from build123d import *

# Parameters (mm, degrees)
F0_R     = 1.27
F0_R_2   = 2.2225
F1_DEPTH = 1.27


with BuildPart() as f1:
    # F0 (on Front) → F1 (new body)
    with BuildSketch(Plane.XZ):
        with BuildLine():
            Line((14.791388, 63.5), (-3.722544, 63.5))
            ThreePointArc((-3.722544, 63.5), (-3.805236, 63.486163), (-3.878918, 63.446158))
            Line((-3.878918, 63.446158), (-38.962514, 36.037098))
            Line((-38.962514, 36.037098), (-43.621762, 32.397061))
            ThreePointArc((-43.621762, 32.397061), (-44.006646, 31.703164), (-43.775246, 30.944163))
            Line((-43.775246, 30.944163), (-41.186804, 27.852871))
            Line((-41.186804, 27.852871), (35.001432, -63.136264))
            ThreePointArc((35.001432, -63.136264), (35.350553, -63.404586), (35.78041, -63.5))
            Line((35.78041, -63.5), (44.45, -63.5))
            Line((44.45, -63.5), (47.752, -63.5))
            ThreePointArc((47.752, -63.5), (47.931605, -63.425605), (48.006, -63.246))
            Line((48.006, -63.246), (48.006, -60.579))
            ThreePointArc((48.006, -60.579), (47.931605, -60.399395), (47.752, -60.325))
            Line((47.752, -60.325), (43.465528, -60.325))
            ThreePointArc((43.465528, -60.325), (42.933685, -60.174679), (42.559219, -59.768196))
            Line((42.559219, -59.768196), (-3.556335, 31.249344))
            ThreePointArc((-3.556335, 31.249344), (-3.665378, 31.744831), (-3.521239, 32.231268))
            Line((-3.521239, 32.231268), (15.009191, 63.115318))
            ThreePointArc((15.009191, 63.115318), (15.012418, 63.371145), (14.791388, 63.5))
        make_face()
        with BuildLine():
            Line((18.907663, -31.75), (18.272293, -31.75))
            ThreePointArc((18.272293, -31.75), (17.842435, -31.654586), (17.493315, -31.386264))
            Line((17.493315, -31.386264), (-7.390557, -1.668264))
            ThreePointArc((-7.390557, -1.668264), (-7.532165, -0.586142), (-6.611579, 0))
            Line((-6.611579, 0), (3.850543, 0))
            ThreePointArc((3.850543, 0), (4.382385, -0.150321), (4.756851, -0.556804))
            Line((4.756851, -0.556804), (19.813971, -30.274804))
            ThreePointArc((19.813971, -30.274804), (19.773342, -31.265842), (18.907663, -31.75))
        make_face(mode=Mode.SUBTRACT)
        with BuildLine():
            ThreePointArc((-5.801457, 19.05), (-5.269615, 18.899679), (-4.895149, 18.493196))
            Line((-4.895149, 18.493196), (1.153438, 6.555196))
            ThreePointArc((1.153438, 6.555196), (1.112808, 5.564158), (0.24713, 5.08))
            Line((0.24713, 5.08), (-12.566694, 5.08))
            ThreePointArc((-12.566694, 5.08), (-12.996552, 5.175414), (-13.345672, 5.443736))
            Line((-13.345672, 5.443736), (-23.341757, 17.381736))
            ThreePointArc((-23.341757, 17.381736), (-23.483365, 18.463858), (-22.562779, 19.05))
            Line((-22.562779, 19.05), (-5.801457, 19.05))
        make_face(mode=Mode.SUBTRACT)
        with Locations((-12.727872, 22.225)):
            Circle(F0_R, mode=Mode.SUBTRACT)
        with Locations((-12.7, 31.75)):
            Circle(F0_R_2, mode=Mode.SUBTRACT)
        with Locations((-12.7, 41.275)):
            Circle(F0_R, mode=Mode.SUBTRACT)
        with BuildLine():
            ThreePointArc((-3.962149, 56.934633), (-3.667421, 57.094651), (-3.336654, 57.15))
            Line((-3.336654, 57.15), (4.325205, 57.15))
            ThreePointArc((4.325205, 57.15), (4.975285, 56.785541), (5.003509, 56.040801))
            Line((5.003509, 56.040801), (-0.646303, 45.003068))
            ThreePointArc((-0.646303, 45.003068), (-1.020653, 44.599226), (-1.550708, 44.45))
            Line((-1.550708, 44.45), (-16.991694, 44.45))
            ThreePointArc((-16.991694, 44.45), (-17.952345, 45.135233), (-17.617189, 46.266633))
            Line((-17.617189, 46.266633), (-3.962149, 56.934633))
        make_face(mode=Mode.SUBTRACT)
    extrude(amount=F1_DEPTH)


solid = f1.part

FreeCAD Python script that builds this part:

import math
import FreeCAD as App
import Part
import Sketcher
Q = App.Units.Quantity

doc = App.newDocument("Part")
params = doc.addObject("Spreadsheet::Sheet", "Params")
for row, (alias, value) in enumerate([
    ("sketch1_diameter", "0.1 in"),
    ("sketch1_diameter2", "0.1 in"),
    ("sketch1_radius", "0.04 in"),
    ("sketch1_radius2", "0.04 in"),
    ("sketch1_radius3", "0.01 in"),
    ("pad1_length", "0.05 in"),
], start=1):
    params.set(f"A{row}", alias)
    params.set(f"B{row}", "=" + value)
    params.setAlias(f"B{row}", alias)

body = doc.addObject("PartDesign::Body", "Body")

# Sketch on XZ plane
sketch1 = body.newObject("Sketcher::SketchObject", "Sketch")
sketch1.AttachmentSupport = (doc.getObject("XZ_Plane"), [""])
sketch1.MapMode = "FlatFace"
sketch1.addGeometry([
    Part.LineSegment(App.Vector(14.791388, 63.5, 0), App.Vector(-3.722544, 63.5, 0)),  # 0
    Part.ArcOfCircle(Part.Circle(App.Vector(-3.722547, 63.246007, 0), App.Vector(0, 0, 1), 0.253993), math.radians(89.999417), math.radians(127.999348)),  # 1
    Part.LineSegment(App.Vector(-3.878918, 63.446158, 0), App.Vector(-38.962514, 36.037098, 0)),  # 2
    Part.LineSegment(App.Vector(-38.962514, 36.037098, 0), App.Vector(-43.621762, 32.397061, 0)),  # 3
    Part.ArcOfCircle(Part.Circle(App.Vector(-42.996268, 31.596428, 0), App.Vector(0, 0, 1), 1.016), math.radians(127.998695), math.radians(219.940596)),  # 4
    Part.LineSegment(App.Vector(-43.775246, 30.944163, 0), App.Vector(-41.186804, 27.852871, 0)),  # 5
    Part.LineSegment(App.Vector(-41.186804, 27.852871, 0), App.Vector(35.001432, -63.136264, 0)),  # 6
    Part.ArcOfCircle(Part.Circle(App.Vector(35.78041, -62.484001, 0), App.Vector(0, 0, 1), 1.015999), math.radians(-140.05949), math.radians(-90.000016)),  # 7
    Part.LineSegment(App.Vector(35.78041, -63.5, 0), App.Vector(47.752, -63.5, 0)),  # 8
    Part.ArcOfCircle(Part.Circle(App.Vector(47.752, -63.246, 0), App.Vector(0, 0, 1), 0.254), math.radians(-89.999906), math.radians(-0.000094)),  # 9
    Part.LineSegment(App.Vector(48.006, -63.246, 0), App.Vector(48.006, -60.579, 0)),  # 10
    Part.ArcOfCircle(Part.Circle(App.Vector(47.752, -60.579, 0), App.Vector(0, 0, 1), 0.254), math.radians(0.000094), math.radians(89.999906)),  # 11
    Part.LineSegment(App.Vector(47.752, -60.325, 0), App.Vector(43.465528, -60.325, 0)),  # 12
    Part.ArcOfCircle(Part.Circle(App.Vector(43.465527, -59.309002, 0), App.Vector(0, 0, 1), 1.015998), math.radians(-153.130254), math.radians(-89.999917)),  # 13
    Part.LineSegment(App.Vector(42.559219, -59.768196, 0), App.Vector(-3.556335, 31.249344, 0)),  # 14
    Part.ArcOfCircle(Part.Circle(App.Vector(-2.650026, 31.70854, 0), App.Vector(0, 0, 1), 1.016001), math.radians(149.036236), math.radians(206.869767)),  # 15
    Part.LineSegment(App.Vector(-3.521239, 32.231268, 0), App.Vector(15.009191, 63.115318, 0)),  # 16
    Part.ArcOfCircle(Part.Circle(App.Vector(14.791386, 63.245999, 0), App.Vector(0, 0, 1), 0.254001), math.radians(-30.963473), math.radians(89.999661)),  # 17
    Part.LineSegment(App.Vector(-22.562779, 19.05, 0), App.Vector(-5.801457, 19.05, 0)),  # 18
    Part.ArcOfCircle(Part.Circle(App.Vector(-5.801457, 18.034002, 0), App.Vector(0, 0, 1), 1.015998), math.radians(26.869746), math.radians(90.000027)),  # 19
    Part.LineSegment(App.Vector(-4.895149, 18.493196, 0), App.Vector(1.153438, 6.555196, 0)),  # 20
    Part.ArcOfCircle(Part.Circle(App.Vector(0.247129, 6.096, 0), App.Vector(0, 0, 1), 1.016), math.radians(-89.99993), math.radians(26.869755)),  # 21
    Part.LineSegment(App.Vector(0.24713, 5.08, 0), App.Vector(-12.566694, 5.08, 0)),  # 22
    Part.ArcOfCircle(Part.Circle(App.Vector(-12.566696, 6.095995, 0), App.Vector(0, 0, 1), 1.015995), math.radians(-140.059598), math.radians(-89.999908)),  # 23
    Part.LineSegment(App.Vector(-13.345672, 5.443736, 0), App.Vector(-23.341757, 17.381736, 0)),  # 24
    Part.ArcOfCircle(Part.Circle(App.Vector(-22.56278, 18.034001, 0), App.Vector(0, 0, 1), 1.015999), math.radians(89.999964), math.radians(219.940598)),  # 25
    Part.ArcOfCircle(Part.Circle(App.Vector(18.907663, -30.734, 0), App.Vector(0, 0, 1), 1.016), math.radians(-90.000016), math.radians(26.869841)),  # 26
    Part.LineSegment(App.Vector(18.907663, -31.75, 0), App.Vector(18.272293, -31.75, 0)),  # 27
    Part.ArcOfCircle(Part.Circle(App.Vector(18.272291, -30.734005, 0), App.Vector(0, 0, 1), 1.015995), math.radians(-140.059598), math.radians(-89.999908)),  # 28
    Part.LineSegment(App.Vector(17.493315, -31.386264, 0), App.Vector(-7.390557, -1.668264, 0)),  # 29
    Part.ArcOfCircle(Part.Circle(App.Vector(-6.61158, -1.015999, 0), App.Vector(0, 0, 1), 1.015999), math.radians(89.999964), math.radians(219.940598)),  # 30
    Part.LineSegment(App.Vector(-6.611579, 0, 0), App.Vector(3.850543, 0, 0)),  # 31
    Part.ArcOfCircle(Part.Circle(App.Vector(3.850543, -1.015998, 0), App.Vector(0, 0, 1), 1.015998), math.radians(26.869746), math.radians(90.000027)),  # 32
    Part.LineSegment(App.Vector(4.756851, -0.556804, 0), App.Vector(19.813971, -30.274804, 0)),  # 33
    Part.Circle(App.Vector(-12.727872, 22.225, 0), App.Vector(0, 0, 1), 1.27),  # 34
    Part.Circle(App.Vector(-12.7, 31.75, 0), App.Vector(0, 0, 1), 2.2225),  # 35
    Part.Circle(App.Vector(-12.7, 41.275, 0), App.Vector(0, 0, 1), 1.27),  # 36
    Part.LineSegment(App.Vector(-17.617189, 46.266633, 0), App.Vector(-3.962149, 56.934633, 0)),  # 37
    Part.ArcOfCircle(Part.Circle(App.Vector(-3.336656, 56.134004, 0), App.Vector(0, 0, 1), 1.015996), math.radians(89.99986), math.radians(127.998797)),  # 38
    Part.LineSegment(App.Vector(-3.336654, 57.15, 0), App.Vector(4.325205, 57.15, 0)),  # 39
    Part.ArcOfCircle(Part.Circle(App.Vector(4.325204, 56.388, 0), App.Vector(0, 0, 1), 0.762), math.radians(-27.106176), math.radians(89.999915)),  # 40
    Part.LineSegment(App.Vector(5.003509, 56.040801, 0), App.Vector(-0.646303, 45.003068, 0)),  # 41
    Part.ArcOfCircle(Part.Circle(App.Vector(-1.550708, 45.465999, 0), App.Vector(0, 0, 1), 1.015999), math.radians(-89.999989), math.radians(-27.106194)),  # 42
    Part.LineSegment(App.Vector(-1.550708, 44.45, 0), App.Vector(-16.991694, 44.45, 0)),  # 43
    Part.ArcOfCircle(Part.Circle(App.Vector(-16.991694, 45.466, 0), App.Vector(0, 0, 1), 1.016), math.radians(127.998737), math.radians(270.000027)),  # 44
], False)
sketch1.addConstraint([
    Sketcher.Constraint("Coincident", 0, 2, 1, 1),
    Sketcher.Constraint("Coincident", 1, 2, 2, 1),
    Sketcher.Constraint("Coincident", 2, 2, 3, 1),
    Sketcher.Constraint("Coincident", 3, 2, 4, 1),
    Sketcher.Constraint("Coincident", 4, 2, 5, 1),
    Sketcher.Constraint("Coincident", 5, 2, 6, 1),
    Sketcher.Constraint("Coincident", 6, 2, 7, 1),
    Sketcher.Constraint("Coincident", 7, 2, 8, 1),
    Sketcher.Constraint("Coincident", 8, 2, 9, 1),
    Sketcher.Constraint("Coincident", 9, 2, 10, 1),
    Sketcher.Constraint("Coincident", 10, 2, 11, 1),
    Sketcher.Constraint("Coincident", 11, 2, 12, 1),
    Sketcher.Constraint("Coincident", 12, 2, 13, 2),
    Sketcher.Constraint("Coincident", 13, 1, 14, 1),
    Sketcher.Constraint("Coincident", 14, 2, 15, 2),
    Sketcher.Constraint("Coincident", 15, 1, 16, 1),
    Sketcher.Constraint("Coincident", 16, 2, 17, 1),
    Sketcher.Constraint("Coincident", 17, 2, 0, 1),
    Sketcher.Constraint("Coincident", 18, 2, 19, 2),
    Sketcher.Constraint("Coincident", 19, 1, 20, 1),
    Sketcher.Constraint("Coincident", 20, 2, 21, 2),
    Sketcher.Constraint("Coincident", 21, 1, 22, 1),
    Sketcher.Constraint("Coincident", 22, 2, 23, 2),
    Sketcher.Constraint("Coincident", 23, 1, 24, 1),
    Sketcher.Constraint("Coincident", 24, 2, 25, 2),
    Sketcher.Constraint("Coincident", 25, 1, 18, 1),
    Sketcher.Constraint("Coincident", 26, 1, 27, 1),
    Sketcher.Constraint("Coincident", 27, 2, 28, 2),
    Sketcher.Constraint("Coincident", 28, 1, 29, 1),
    Sketcher.Constraint("Coincident", 29, 2, 30, 2),
    Sketcher.Constraint("Coincident", 30, 1, 31, 1),
    Sketcher.Constraint("Coincident", 31, 2, 32, 2),
    Sketcher.Constraint("Coincident", 32, 1, 33, 1),
    Sketcher.Constraint("Coincident", 33, 2, 26, 2),
    Sketcher.Constraint("Coincident", 37, 2, 38, 2),
    Sketcher.Constraint("Coincident", 38, 1, 39, 1),
    Sketcher.Constraint("Coincident", 39, 2, 40, 2),
    Sketcher.Constraint("Coincident", 40, 1, 41, 1),
    Sketcher.Constraint("Coincident", 41, 2, 42, 2),
    Sketcher.Constraint("Coincident", 42, 1, 43, 1),
    Sketcher.Constraint("Coincident", 43, 2, 44, 2),
    Sketcher.Constraint("Coincident", 44, 1, 37, 1),
    Sketcher.Constraint("Horizontal", 0),
    Sketcher.Constraint("Horizontal", 8),
    Sketcher.Constraint("Vertical", 10),
    Sketcher.Constraint("Horizontal", 12),
    Sketcher.Constraint("Horizontal", 18),
    Sketcher.Constraint("Horizontal", 22),
    Sketcher.Constraint("Horizontal", 27),
    Sketcher.Constraint("Horizontal", 31),
    Sketcher.Constraint("Horizontal", 39),
    Sketcher.Constraint("Horizontal", 43),
    Sketcher.Constraint("PointOnObject", 30, 1, -1),
    Sketcher.Constraint("Diameter", 34, Q("0.1 in")),
    Sketcher.Constraint("Diameter", 36, Q("0.1 in")),
    Sketcher.Constraint("Radius", 4, Q("0.04 in")),
    Sketcher.Constraint("Radius", 7, Q("0.04 in")),
    Sketcher.Constraint("Radius", 9, Q("0.01 in")),
    Sketcher.Constraint("Radius", 11, Q("0.01 in")),
    Sketcher.Constraint("Radius", 13, Q("0.0399999 in")),
    Sketcher.Constraint("Radius", 15, Q("0.04 in")),
    Sketcher.Constraint("Radius", 17, Q("0.01 in")),
    Sketcher.Constraint("Radius", 19, Q("0.0399999 in")),
    Sketcher.Constraint("Radius", 21, Q("0.04 in")),
    Sketcher.Constraint("Radius", 23, Q("0.0399998 in")),
    Sketcher.Constraint("Radius", 25, Q("0.04 in")),
    Sketcher.Constraint("Radius", 26, Q("0.04 in")),
    Sketcher.Constraint("Radius", 28, Q("0.0399998 in")),
    Sketcher.Constraint("Radius", 30, Q("0.04 in")),
    Sketcher.Constraint("Radius", 32, Q("0.0399999 in")),
    Sketcher.Constraint("Radius", 38, Q("0.0399998 in")),
    Sketcher.Constraint("Radius", 40, Q("0.03 in")),
    Sketcher.Constraint("Radius", 42, Q("0.04 in")),
    Sketcher.Constraint("Radius", 44, Q("0.04 in")),
    Sketcher.Constraint("Diameter", 35, Q("0.175 in")),
    Sketcher.Constraint("DistanceX", 35, 3, -1, 1, Q("0.5 in")),
    Sketcher.Constraint("DistanceX", 36, 3, -1, 1, Q("0.5 in")),
    Sketcher.Constraint("DistanceY", -1, 1, 0, 2, Q("2.5 in")),
    Sketcher.Constraint("DistanceY", 7, 2, -1, 1, Q("2.5 in")),
    Sketcher.Constraint("DistanceY", -1, 1, 21, 1, Q("0.2 in")),
    Sketcher.Constraint("DistanceY", 10, 1, 10, 2, Q("0.105 in")),
    Sketcher.Constraint("DistanceX", -1, 1, 9, 3, Q("1.88 in")),
    Sketcher.Constraint("DistanceY", -1, 1, 19, 3, Q("0.7100001 in")),
    Sketcher.Constraint("DistanceY", 26, 3, -1, 1, Q("1.21 in")),
    Sketcher.Constraint("DistanceY", -1, 1, 35, 3, Q("1.25 in")),
    Sketcher.Constraint("DistanceY", -1, 1, 38, 3, Q("2.2100002 in")),
    Sketcher.Constraint("DistanceY", -1, 1, 42, 3, Q("1.79 in")),
    Sketcher.Constraint("DistanceX", -1, 1, 8, 2, Q("1.88 in")),
    Sketcher.Constraint("DistanceY", 9, 2, -1, 1, Q("2.49 in")),
    Sketcher.Constraint("DistanceX", -1, 1, 11, 2, Q("1.88 in")),
    Sketcher.Constraint("DistanceY", 11, 3, -1, 1, Q("2.385 in")),
    Sketcher.Constraint("DistanceY", -1, 1, 34, 3, Q("0.875 in")),
    Sketcher.Constraint("DistanceY", -1, 1, 36, 3, Q("1.625 in")),
    Sketcher.Constraint("Radius", 1, 0.253993),
    Sketcher.Constraint("DistanceX", 8, 1, 8, 2, 11.97159),
    Sketcher.Constraint("DistanceX", 18, 1, 18, 2, 16.761322),
    Sketcher.Constraint("DistanceX", 27, 2, 27, 1, 0.63537),
    Sketcher.Constraint("DistanceX", 39, 1, 39, 2, 7.661859),
    Sketcher.Constraint("DistanceY", -1, 1, 40, 1, 56.040801),
    Sketcher.Constraint("Distance", 3, 5.912568),
    Sketcher.Constraint("Distance", 6, 118.674639),
    Sketcher.Constraint("Distance", 14, 102.033509),
    Sketcher.Constraint("Distance", 16, 36.016682),
    Sketcher.Constraint("Distance", 20, 13.382871),
    Sketcher.Constraint("DistanceX", 0, 2, 0, 1, 18.513932),
    Sketcher.Constraint("DistanceX", 12, 2, 12, 1, 4.286472),
    Sketcher.Constraint("DistanceX", 22, 2, 22, 1, 12.813824),
    Sketcher.Constraint("DistanceX", 31, 1, 31, 2, 10.462122),
    Sketcher.Constraint("DistanceX", 43, 2, 43, 1, 15.440986),
    Sketcher.Constraint("DistanceX", 4, 3, -1, 1, 42.996268),
    Sketcher.Constraint("DistanceX", -1, 1, 7, 3, 35.78041),
    Sketcher.Constraint("DistanceY", -1, 1, 15, 3, 31.70854),
    Sketcher.Constraint("DistanceX", -1, 1, 21, 3, 0.247129),
    Sketcher.Constraint("DistanceX", 25, 3, -1, 1, 22.56278),
    Sketcher.Constraint("DistanceX", -1, 1, 28, 3, 18.272291),
    Sketcher.Constraint("DistanceX", 30, 3, -1, 1, 6.61158),
    Sketcher.Constraint("DistanceX", 42, 3, -1, 1, 1.550708),
    Sketcher.Constraint("DistanceX", 3, 2, -1, 1, 43.621762),
    Sketcher.Constraint("DistanceY", -1, 1, 3, 2, 32.397061),
    Sketcher.Constraint("DistanceY", -1, 1, 5, 2, 27.852871),
    Sketcher.Constraint("DistanceX", -1, 1, 13, 1, 42.559219),
    Sketcher.Constraint("DistanceX", 15, 1, -1, 1, 3.521239),
    Sketcher.Constraint("DistanceY", -1, 1, 15, 1, 32.231268),
    Sketcher.Constraint("DistanceX", -1, 1, 16, 2, 15.009191),
    Sketcher.Constraint("DistanceX", 19, 1, -1, 1, 4.895149),
    Sketcher.Constraint("DistanceX", -1, 1, 21, 1, 0.24713),
    Sketcher.Constraint("DistanceX", 25, 1, -1, 1, 22.562779),
    Sketcher.Constraint("DistanceX", 30, 1, -1, 1, 6.611579),
    Sketcher.Constraint("DistanceX", -1, 1, 32, 1, 4.756851),
    Sketcher.Constraint("DistanceX", -1, 1, 33, 2, 19.813971),
    Sketcher.Constraint("DistanceX", 37, 2, -1, 1, 3.962149),
    Sketcher.Constraint("DistanceX", -1, 1, 40, 1, 5.003509),
    Sketcher.Constraint("DistanceX", 44, 1, -1, 1, 17.617189),
    Sketcher.Constraint("Distance", 2, 44.520953),
    Sketcher.Constraint("Distance", 5, 4.031888),
    Sketcher.Constraint("Distance", 24, 15.570407),
    Sketcher.Constraint("Distance", 29, 38.760374),
    Sketcher.Constraint("Distance", 33, 33.314807),
    Sketcher.Constraint("Distance", 37, 17.328195),
    Sketcher.Constraint("Distance", 41, 12.399674),
    Sketcher.Constraint("DistanceX", 1, 3, -1, 1, 3.722547),
    Sketcher.Constraint("DistanceX", -1, 1, 13, 3, 43.465527),
    Sketcher.Constraint("DistanceX", 19, 3, -1, 1, 5.801457),
    Sketcher.Constraint("DistanceX", 23, 3, -1, 1, 12.566696),
    Sketcher.Constraint("DistanceX", -1, 1, 26, 3, 18.907663),
    Sketcher.Constraint("DistanceX", 34, 3, -1, 1, 12.727872),
    Sketcher.Constraint("DistanceX", 38, 3, -1, 1, 3.336656),
    Sketcher.Constraint("DistanceX", 0, 2, -1, 1, 3.722544),
    Sketcher.Constraint("DistanceX", 2, 2, -1, 1, 38.962514),
    Sketcher.Constraint("DistanceX", 4, 2, -1, 1, 43.775246),
    Sketcher.Constraint("DistanceX", 23, 1, -1, 1, 13.345672),
    Sketcher.Constraint("DistanceX", -1, 1, 26, 1, 18.907663),
    Sketcher.Constraint("DistanceX", -1, 1, 28, 1, 17.493315),
    Sketcher.Constraint("DistanceX", 38, 1, -1, 1, 3.336654),
    Sketcher.Constraint("DistanceX", 42, 1, -1, 1, 1.550708),
])
sketch1.setExpression("Constraints[53]", "Params.sketch1_diameter")
sketch1.setExpression("Constraints[54]", "Params.sketch1_diameter2")
sketch1.setExpression("Constraints[55]", "Params.sketch1_radius")
sketch1.setExpression("Constraints[56]", "Params.sketch1_radius2")
sketch1.setExpression("Constraints[57]", "Params.sketch1_radius3")
pad1 = body.newObject("PartDesign::Pad", "Pad")
pad1.Profile = sketch1
pad1.setExpression("Length", "Params.pad1_length")

doc.recompute()
